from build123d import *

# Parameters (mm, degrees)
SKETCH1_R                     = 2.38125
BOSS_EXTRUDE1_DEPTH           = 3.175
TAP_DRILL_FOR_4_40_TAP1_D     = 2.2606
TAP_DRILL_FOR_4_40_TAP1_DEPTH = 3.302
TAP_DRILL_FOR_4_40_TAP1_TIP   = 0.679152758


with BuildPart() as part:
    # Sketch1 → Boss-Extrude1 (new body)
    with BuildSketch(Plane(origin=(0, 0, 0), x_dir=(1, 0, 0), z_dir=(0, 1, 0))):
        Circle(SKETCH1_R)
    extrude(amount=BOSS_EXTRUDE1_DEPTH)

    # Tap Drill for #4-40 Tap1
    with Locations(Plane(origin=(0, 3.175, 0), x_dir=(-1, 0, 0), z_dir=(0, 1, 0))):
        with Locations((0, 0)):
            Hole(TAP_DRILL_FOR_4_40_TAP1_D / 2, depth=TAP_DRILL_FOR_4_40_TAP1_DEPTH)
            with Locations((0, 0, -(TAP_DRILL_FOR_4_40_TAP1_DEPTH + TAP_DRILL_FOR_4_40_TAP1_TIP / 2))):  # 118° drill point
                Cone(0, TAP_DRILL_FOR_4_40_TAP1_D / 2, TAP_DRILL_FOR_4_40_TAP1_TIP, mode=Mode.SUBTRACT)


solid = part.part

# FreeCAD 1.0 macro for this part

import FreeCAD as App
import Part
import Sketcher
Q = App.Units.Quantity

doc = App.newDocument("Part")
params = doc.addObject("Spreadsheet::Sheet", "Params")
for row, (alias, value) in enumerate([
    ("sketch1_diameter", "0.1875 in"),
    ("pad1_length", "0.125 in"),
    ("sketch2_diameter", "0.089 in"),
    ("hole_diameter", "0.089 in"),
    ("hole_depth", "0.13 in"),
], start=1):
    params.set(f"A{row}", alias)
    params.set(f"B{row}", "=" + value)
    params.setAlias(f"B{row}", alias)

body = doc.addObject("PartDesign::Body", "Body")

# Sketch on XZ plane
sketch1 = doc.addObject("Sketcher::SketchObject", "Sketch")
body.addObject(sketch1)
sketch1.AttachmentSupport = (doc.XZ_Plane, [""])
sketch1.MapMode = "FlatFace"
sketch1.addGeometry(Part.Circle(App.Vector(0, 0, 0), App.Vector(0, 0, 1), 2.4), False)
sketch1.addConstraint(Sketcher.Constraint("Coincident", 0, 3, -1, 1))
sketch1.addConstraint(Sketcher.Constraint("Diameter", 0, Q("0.1875 in")))
sketch1.setExpression("Constraints[1]", "Params.sketch1_diameter")
pad1 = doc.addObject("PartDesign::Pad", "Pad")
body.addObject(pad1)
pad1.Profile = sketch1
pad1.setExpression("Length", "Params.pad1_length")
pad1.Reversed = True

# Sketch on XZ plane
sketch2 = doc.addObject("Sketcher::SketchObject", "Sketch001")
body.addObject(sketch2)
sketch2.AttachmentSupport = (doc.XZ_Plane, [""])
sketch2.MapMode = "FlatFace"
sketch2.AttachmentOffset = App.Placement(App.Vector(0, 0, -0.125 * 25.4), App.Rotation())
sketch2.addGeometry(Part.Circle(App.Vector(0, 0, 0), App.Vector(0, 0, 1), 1.1), False)
sketch2.addConstraint(Sketcher.Constraint("Coincident", 0, 3, -1, 1))
sketch2.addConstraint(Sketcher.Constraint("Diameter", 0, Q("0.089 in")))
sketch2.setExpression("Constraints[1]", "Params.sketch2_diameter")
doc.recompute()
hole = doc.addObject("PartDesign::Hole", "Hole")
body.addObject(hole)
hole.Profile = sketch2
hole.ThreadType = "None"
hole.setExpression("Diameter", "Params.hole_diameter")
hole.DepthType = "Dimension"
hole.setExpression("Depth", "Params.hole_depth")
hole.DrillPoint = "Angled"
hole.DrillPointAngle = 118
hole.Reversed = True

doc.recompute()
